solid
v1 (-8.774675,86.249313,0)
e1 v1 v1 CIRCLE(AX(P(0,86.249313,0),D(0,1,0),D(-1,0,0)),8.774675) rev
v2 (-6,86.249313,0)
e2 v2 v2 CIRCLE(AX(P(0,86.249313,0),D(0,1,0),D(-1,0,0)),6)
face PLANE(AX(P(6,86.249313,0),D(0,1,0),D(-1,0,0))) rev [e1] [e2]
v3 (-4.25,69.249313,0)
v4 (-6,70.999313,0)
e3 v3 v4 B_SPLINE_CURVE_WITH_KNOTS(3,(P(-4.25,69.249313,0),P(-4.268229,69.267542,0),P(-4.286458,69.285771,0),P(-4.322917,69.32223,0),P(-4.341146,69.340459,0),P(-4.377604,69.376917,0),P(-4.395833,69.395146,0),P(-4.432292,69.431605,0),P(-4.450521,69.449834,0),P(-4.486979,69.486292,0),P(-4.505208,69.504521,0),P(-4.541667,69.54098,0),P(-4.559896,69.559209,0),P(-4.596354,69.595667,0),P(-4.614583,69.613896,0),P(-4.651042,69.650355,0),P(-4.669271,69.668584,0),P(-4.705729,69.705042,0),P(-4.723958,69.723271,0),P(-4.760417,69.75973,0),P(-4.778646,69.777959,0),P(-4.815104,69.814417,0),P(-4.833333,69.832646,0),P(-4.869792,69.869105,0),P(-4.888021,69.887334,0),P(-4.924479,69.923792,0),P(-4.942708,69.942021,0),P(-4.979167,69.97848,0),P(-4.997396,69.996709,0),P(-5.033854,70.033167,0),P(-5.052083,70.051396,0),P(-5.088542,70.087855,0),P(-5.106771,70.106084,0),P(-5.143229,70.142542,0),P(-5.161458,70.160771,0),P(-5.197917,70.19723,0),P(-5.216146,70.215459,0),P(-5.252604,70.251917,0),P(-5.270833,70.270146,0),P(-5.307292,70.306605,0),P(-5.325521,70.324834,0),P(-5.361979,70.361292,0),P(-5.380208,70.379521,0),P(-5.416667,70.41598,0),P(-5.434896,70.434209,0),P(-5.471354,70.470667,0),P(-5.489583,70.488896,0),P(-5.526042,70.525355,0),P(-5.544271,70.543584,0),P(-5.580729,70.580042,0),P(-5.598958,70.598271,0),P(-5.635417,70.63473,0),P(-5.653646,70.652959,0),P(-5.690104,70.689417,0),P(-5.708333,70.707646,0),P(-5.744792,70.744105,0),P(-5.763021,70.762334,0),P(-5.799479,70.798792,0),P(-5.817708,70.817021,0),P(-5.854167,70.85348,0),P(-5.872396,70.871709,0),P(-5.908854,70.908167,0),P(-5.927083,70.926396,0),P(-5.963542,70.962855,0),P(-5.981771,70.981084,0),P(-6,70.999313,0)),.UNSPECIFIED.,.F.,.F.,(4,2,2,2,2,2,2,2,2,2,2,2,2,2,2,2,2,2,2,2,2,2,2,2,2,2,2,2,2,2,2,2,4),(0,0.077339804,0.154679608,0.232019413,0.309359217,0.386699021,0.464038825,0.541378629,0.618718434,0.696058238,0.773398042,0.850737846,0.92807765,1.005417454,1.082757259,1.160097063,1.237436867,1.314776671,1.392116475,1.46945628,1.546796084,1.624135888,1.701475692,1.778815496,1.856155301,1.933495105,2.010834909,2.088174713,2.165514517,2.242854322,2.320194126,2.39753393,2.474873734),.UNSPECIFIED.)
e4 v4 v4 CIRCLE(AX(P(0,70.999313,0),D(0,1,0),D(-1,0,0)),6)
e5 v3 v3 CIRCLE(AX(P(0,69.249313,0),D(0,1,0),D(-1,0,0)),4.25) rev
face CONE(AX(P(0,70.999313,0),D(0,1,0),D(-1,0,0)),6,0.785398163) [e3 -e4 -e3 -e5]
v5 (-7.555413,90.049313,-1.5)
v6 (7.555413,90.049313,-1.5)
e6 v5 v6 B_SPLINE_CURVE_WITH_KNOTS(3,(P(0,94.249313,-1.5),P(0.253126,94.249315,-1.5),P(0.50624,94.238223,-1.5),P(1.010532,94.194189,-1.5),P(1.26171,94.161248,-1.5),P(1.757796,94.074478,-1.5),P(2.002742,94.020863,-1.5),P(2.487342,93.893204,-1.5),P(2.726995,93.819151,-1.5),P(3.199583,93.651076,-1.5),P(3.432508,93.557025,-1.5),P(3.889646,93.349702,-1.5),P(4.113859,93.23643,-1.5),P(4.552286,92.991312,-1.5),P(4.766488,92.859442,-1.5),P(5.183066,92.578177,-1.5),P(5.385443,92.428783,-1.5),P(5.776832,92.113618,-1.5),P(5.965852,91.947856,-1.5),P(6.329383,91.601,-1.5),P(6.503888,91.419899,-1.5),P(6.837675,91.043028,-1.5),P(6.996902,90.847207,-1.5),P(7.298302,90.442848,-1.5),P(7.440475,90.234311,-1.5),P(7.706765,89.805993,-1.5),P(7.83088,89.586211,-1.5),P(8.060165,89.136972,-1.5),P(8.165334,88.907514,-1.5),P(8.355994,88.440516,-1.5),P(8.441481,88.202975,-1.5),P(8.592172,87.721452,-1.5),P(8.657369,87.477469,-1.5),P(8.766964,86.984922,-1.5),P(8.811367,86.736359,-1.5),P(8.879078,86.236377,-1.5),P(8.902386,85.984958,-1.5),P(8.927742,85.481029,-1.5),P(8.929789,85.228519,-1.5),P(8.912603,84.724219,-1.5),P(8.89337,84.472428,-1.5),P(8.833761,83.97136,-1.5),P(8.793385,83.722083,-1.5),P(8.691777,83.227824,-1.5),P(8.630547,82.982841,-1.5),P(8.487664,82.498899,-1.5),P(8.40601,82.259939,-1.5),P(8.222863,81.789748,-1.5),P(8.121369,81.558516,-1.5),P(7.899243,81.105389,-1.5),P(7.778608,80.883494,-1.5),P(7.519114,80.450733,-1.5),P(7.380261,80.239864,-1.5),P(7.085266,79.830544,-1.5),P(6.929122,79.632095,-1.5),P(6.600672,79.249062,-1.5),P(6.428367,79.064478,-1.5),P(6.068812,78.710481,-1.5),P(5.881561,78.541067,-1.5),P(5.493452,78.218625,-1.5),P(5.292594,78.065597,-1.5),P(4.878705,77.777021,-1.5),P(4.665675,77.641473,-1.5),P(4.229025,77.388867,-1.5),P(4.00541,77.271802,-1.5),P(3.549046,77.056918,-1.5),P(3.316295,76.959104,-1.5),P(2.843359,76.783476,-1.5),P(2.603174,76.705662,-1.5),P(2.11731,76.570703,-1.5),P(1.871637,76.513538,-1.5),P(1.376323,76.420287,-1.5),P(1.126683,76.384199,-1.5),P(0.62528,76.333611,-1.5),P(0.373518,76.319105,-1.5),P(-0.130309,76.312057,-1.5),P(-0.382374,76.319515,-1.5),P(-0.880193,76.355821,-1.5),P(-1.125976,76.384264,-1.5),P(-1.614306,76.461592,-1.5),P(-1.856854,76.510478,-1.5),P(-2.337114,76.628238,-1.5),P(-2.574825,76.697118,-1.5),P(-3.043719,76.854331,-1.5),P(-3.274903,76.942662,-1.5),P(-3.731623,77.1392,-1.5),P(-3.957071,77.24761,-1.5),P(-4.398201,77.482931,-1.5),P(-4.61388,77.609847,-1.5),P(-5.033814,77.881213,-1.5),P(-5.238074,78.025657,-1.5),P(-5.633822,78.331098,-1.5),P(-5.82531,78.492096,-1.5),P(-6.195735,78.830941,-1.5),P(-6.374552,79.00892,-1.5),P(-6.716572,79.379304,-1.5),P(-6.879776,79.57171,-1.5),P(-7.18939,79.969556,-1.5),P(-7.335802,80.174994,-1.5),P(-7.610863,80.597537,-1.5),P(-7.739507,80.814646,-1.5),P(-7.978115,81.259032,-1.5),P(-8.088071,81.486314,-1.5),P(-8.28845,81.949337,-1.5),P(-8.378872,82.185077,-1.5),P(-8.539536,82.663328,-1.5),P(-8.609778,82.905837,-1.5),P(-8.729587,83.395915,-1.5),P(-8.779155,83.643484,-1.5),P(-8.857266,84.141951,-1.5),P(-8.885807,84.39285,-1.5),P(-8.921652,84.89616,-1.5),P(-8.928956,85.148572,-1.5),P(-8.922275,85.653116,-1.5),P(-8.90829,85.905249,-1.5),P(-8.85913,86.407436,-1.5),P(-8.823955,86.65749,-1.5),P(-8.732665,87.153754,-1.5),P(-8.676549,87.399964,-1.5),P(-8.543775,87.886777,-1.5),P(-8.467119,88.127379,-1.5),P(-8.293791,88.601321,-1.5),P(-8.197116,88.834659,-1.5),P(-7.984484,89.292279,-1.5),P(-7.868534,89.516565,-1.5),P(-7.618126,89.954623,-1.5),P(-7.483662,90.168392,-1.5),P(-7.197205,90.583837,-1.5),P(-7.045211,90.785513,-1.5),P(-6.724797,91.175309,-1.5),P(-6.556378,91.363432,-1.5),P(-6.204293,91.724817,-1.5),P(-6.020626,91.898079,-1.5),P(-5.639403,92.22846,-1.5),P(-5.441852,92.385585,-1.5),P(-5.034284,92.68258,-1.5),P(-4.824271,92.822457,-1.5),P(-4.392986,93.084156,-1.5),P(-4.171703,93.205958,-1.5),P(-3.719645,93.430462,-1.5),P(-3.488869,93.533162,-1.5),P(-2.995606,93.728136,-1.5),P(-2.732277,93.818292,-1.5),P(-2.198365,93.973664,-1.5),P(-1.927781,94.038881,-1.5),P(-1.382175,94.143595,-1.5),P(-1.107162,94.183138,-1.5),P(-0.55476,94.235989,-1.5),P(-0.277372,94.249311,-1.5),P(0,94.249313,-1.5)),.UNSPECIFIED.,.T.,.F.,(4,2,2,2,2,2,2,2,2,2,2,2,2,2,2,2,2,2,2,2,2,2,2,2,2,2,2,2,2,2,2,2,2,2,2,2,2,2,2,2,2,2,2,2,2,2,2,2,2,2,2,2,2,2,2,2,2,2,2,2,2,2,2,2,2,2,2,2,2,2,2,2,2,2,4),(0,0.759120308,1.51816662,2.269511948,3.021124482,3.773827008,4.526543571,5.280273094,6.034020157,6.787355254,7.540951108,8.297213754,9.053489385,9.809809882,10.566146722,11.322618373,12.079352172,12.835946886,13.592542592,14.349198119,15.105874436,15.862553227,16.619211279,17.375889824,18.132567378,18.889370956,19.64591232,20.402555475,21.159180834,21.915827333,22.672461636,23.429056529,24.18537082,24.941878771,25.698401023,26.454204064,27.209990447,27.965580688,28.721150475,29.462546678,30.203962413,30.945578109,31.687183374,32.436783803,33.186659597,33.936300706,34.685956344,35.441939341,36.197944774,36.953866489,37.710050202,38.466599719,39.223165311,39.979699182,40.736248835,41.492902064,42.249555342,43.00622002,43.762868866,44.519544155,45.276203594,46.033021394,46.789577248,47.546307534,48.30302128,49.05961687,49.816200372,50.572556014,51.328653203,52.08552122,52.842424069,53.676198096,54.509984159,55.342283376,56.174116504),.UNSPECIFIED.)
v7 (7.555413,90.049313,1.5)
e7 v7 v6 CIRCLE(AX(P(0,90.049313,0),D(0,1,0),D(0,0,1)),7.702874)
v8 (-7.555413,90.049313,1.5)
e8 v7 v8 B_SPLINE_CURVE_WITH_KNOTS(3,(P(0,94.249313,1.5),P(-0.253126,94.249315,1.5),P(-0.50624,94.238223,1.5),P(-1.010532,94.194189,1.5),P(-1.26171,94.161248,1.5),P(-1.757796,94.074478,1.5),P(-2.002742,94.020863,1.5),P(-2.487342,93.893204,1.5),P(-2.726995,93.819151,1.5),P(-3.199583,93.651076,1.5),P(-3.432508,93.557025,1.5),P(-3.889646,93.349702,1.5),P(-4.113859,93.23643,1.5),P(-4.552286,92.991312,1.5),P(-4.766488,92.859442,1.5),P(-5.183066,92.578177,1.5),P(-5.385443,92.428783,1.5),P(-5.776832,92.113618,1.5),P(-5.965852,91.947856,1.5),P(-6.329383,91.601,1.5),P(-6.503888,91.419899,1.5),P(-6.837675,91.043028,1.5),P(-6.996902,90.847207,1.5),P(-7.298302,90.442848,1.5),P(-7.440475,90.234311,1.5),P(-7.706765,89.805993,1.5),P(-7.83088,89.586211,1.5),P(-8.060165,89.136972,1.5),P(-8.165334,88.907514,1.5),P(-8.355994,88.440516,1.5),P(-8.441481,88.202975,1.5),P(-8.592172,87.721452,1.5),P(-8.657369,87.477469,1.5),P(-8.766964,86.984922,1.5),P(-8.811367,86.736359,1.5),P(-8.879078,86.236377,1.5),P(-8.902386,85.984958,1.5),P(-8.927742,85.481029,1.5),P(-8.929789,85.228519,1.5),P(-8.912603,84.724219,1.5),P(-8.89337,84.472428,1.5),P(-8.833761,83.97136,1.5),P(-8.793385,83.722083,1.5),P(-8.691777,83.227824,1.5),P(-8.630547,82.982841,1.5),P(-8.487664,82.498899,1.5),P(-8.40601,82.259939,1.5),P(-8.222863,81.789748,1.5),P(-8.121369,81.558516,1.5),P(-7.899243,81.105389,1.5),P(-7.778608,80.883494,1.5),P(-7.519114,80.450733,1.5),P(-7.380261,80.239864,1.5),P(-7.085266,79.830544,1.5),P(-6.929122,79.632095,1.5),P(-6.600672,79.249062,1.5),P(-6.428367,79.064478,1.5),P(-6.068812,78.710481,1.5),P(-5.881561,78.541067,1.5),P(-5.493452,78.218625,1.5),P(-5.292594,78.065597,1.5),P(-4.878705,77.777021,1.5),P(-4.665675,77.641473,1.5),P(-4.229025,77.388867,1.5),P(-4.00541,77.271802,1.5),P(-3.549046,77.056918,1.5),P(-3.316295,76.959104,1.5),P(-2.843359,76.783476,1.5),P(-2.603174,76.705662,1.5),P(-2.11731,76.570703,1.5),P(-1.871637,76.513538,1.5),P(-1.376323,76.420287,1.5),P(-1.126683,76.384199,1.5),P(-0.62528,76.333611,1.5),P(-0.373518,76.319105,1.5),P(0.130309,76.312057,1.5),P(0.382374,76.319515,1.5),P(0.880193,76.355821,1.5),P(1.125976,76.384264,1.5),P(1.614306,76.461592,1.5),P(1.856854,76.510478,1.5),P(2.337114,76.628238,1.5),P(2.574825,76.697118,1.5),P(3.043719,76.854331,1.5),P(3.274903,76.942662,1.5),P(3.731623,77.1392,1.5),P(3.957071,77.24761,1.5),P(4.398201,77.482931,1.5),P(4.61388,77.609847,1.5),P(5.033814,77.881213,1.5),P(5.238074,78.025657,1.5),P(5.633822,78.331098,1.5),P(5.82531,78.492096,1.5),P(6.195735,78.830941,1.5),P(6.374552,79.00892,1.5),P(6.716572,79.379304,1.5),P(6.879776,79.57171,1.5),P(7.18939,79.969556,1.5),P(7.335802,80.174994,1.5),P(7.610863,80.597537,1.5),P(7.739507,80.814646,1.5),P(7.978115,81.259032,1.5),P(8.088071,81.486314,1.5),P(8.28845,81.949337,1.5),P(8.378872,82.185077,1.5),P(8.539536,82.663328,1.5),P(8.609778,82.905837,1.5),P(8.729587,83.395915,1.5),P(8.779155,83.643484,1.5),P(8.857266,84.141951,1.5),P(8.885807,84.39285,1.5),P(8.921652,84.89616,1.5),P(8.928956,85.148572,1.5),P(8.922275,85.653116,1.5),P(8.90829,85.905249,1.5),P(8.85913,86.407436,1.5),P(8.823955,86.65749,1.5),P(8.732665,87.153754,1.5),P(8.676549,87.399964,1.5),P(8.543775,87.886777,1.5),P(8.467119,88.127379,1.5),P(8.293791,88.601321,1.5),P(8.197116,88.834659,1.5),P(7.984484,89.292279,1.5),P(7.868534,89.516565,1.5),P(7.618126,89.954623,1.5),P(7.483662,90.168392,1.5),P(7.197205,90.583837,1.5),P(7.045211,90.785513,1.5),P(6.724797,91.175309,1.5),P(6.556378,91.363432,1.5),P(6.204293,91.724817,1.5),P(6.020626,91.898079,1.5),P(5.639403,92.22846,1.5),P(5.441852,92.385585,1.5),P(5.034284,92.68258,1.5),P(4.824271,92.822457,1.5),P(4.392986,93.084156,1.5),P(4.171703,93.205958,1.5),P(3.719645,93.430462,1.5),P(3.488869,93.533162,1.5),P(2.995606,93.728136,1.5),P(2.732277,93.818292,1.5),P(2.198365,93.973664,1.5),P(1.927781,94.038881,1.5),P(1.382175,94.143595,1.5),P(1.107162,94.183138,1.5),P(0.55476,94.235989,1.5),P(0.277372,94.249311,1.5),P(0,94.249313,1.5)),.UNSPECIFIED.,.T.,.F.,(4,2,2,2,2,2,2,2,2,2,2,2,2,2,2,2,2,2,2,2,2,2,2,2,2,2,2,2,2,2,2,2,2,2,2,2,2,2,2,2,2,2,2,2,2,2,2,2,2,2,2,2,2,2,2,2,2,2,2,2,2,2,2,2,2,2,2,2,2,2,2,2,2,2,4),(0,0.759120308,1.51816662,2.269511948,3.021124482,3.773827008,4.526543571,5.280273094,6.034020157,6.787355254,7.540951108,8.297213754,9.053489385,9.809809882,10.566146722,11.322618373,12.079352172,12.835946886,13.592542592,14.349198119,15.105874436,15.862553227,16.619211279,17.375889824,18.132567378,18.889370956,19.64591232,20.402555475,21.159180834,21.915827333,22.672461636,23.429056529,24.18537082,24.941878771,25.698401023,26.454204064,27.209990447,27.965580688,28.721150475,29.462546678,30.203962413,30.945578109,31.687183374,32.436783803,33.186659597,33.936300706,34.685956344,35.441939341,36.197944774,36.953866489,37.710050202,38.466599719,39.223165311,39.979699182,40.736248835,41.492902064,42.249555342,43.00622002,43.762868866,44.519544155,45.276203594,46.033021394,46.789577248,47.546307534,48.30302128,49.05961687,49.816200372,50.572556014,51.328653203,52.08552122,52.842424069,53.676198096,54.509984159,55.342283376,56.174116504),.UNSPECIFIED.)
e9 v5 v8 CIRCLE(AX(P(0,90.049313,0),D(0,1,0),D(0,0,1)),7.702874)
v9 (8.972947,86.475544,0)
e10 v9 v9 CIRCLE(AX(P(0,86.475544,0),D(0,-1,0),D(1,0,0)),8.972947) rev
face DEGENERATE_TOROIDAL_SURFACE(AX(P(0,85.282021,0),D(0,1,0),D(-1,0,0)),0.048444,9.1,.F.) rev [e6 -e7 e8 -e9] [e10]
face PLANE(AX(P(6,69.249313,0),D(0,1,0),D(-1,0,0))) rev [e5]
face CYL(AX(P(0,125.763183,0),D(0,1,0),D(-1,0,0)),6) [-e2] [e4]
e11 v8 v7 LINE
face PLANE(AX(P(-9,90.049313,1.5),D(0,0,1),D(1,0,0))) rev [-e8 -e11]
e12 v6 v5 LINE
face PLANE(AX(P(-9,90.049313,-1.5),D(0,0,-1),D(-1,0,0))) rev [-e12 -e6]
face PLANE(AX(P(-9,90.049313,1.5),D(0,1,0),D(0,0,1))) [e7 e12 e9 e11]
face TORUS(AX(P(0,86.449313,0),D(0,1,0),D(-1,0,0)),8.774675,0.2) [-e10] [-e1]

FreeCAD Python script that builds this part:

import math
import FreeCAD as App
import Part
import Sketcher
Q = App.Units.Quantity


def edges_at(feature, points):
    """Names of the edges that pass closest to the given points."""
    edges = feature.Shape.Edges
    near = lambda p: min(range(len(edges)), key=lambda i: edges[i].distToShape(Part.Vertex(*p))[0])
    return sorted({f"Edge{near(p) + 1}" for p in points})


def add_polygon(sketch, points):
    """Adds a closed chain of lines whose ends are joined by coincident constraints."""
    first, n = sketch.GeometryCount, len(points)
    for a, b in zip(points, points[1:] + points[:1]):
        sketch.addGeometry(Part.LineSegment(App.Vector(*a, 0), App.Vector(*b, 0)), False)
    for i in range(n):
        sketch.addConstraint(Sketcher.Constraint("Coincident", first + i, 2, first + (i + 1) % n, 1))

doc = App.newDocument("Part")
body = doc.addObject("PartDesign::Body", "Body")

# Sketch on XY plane
sketch1 = body.newObject("Sketcher::SketchObject", "Sketch")
sketch1.AttachmentSupport = (doc.getObject("XY_Plane"), [""])
sketch1.MapMode = "FlatFace"
sketch1.addGeometry([
    Part.LineSegment(App.Vector(6, 86.249313, 0), App.Vector(9, 86.249313, 0)),  # 0
    Part.ArcOfCircle(Part.Circle(App.Vector(-0.048444, 85.282021, 0), App.Vector(0, 0, 1), 9.1), math.radians(6.101828), math.radians(80.202952)),  # 1
    Part.LineSegment(App.Vector(1.5, 94.249313, 0), App.Vector(0, 94.249313, 0)),  # 2
    Part.LineSegment(App.Vector(0, 94.249313, 0), App.Vector(0, 69.249313, 0)),  # 3
    Part.LineSegment(App.Vector(0, 69.249313, 0), App.Vector(6, 69.249313, 0)),  # 4
    Part.LineSegment(App.Vector(6, 69.249313, 0), App.Vector(6, 86.249313, 0)),  # 5
], False)
sketch1.addConstraint([
    Sketcher.Constraint("Coincident", 0, 2, 1, 1),
    Sketcher.Constraint("Coincident", 1, 2, 2, 1),
    Sketcher.Constraint("Coincident", 2, 2, 3, 1),
    Sketcher.Constraint("Coincident", 3, 2, 4, 1),
    Sketcher.Constraint("Coincident", 4, 2, 5, 1),
    Sketcher.Constraint("Coincident", 5, 2, 0, 1),
    Sketcher.Constraint("Horizontal", 0),
    Sketcher.Constraint("Horizontal", 2),
    Sketcher.Constraint("Vertical", 3),
    Sketcher.Constraint("Horizontal", 4),
    Sketcher.Constraint("Vertical", 5),
    Sketcher.Constraint("PointOnObject", 2, 2, -2),
    Sketcher.Constraint("Radius", 1, Q("9.1 mm")),
    Sketcher.Constraint("DistanceX", 0, 1, 0, 2, Q("3 mm")),
    Sketcher.Constraint("DistanceX", 4, 1, 4, 2, Q("6 mm")),
    Sketcher.Constraint("DistanceY", 3, 2, 3, 1, Q("25 mm")),
    Sketcher.Constraint("DistanceY", 5, 1, 5, 2, Q("17 mm")),
    Sketcher.Constraint("DistanceX", 2, 2, 2, 1, Q("1.5 mm")),
    Sketcher.Constraint("DistanceY", -1, 1, 1, 3, Q("85.282021 mm")),
])
revolution = body.newObject("PartDesign::Revolution", "Revolution")
revolution.Profile = sketch1
revolution.ReferenceAxis = (sketch1, ["V_Axis"])
revolution.Angle = 360

# Sketch on XZ plane
sketch2 = body.newObject("Sketcher::SketchObject", "Sketch001")
sketch2.AttachmentSupport = (doc.getObject("XZ_Plane"), [""])
sketch2.MapMode = "FlatFace"
sketch2.AttachmentOffset = App.Placement(App.Vector(0, 0, -94.249313), App.Rotation())
add_polygon(sketch2, [(9, 1.5), (9, -1.5), (-9, -1.5), (-9, 1.5)])  # lines 0-3
sketch2.addConstraint([
    Sketcher.Constraint("Vertical", 0),
    Sketcher.Constraint("Horizontal", 1),
    Sketcher.Constraint("Vertical", 2),
    Sketcher.Constraint("Horizontal", 3),
    Sketcher.Constraint("Symmetric", 0, 2, 2, 2, -1, 1),
    Sketcher.Constraint("DistanceX", 1, 2, 1, 1, Q("18 mm")),
    Sketcher.Constraint("DistanceY", 0, 2, 0, 1, Q("3 mm")),
])
pocket1 = body.newObject("PartDesign::Pocket", "Pocket")
pocket1.Profile = sketch2
pocket1.Length = 4.2
pocket1.Reversed = True
doc.recompute()

fillet = body.newObject("PartDesign::Fillet", "Fillet")
fillet.Base = (pocket1, edges_at(pocket1, [(9, 86.249, 0)]))
fillet.Radius = 0.2
doc.recompute()

chamfer = body.newObject("PartDesign::Chamfer", "Chamfer")
chamfer.Base = (fillet, edges_at(fillet, [(6, 69.249, 0)]))
chamfer.Size = 1.75

doc.recompute()
